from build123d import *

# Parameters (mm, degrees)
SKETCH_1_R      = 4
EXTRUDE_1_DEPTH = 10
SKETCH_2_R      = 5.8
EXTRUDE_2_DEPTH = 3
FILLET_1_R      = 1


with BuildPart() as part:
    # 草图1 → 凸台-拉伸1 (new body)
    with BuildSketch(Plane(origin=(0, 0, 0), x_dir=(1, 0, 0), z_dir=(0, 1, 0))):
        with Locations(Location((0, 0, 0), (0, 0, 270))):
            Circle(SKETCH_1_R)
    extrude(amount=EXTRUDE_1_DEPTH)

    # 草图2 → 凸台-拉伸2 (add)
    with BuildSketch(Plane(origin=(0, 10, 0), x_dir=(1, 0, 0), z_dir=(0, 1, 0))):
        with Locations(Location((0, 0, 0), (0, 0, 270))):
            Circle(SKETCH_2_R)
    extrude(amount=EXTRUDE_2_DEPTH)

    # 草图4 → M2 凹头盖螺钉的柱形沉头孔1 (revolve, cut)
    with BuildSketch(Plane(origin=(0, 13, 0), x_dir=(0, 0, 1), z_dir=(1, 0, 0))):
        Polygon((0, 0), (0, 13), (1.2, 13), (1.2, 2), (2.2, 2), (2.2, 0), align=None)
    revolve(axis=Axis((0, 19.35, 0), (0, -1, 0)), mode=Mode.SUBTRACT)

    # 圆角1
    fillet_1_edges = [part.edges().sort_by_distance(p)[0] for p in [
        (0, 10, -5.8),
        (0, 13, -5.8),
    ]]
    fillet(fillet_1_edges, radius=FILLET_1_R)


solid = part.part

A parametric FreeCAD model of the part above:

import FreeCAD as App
import Part
import Sketcher

V = App.Vector


def edges_at(feature, points):
    """Names of the edges that pass closest to the given points."""
    edges = feature.Shape.Edges
    near = lambda p: min(range(len(edges)), key=lambda i: edges[i].distToShape(Part.Vertex(*p))[0])
    return sorted({f"Edge{near(p) + 1}" for p in points})

doc = App.newDocument("Part")
params = doc.addObject("Spreadsheet::Sheet", "Params")
for row, (alias, value) in enumerate([
    ("sketch1_diameter", "8 mm"),
    ("pad1_length", "10 mm"),
    ("sketch2_diameter", "11.6 mm"),
    ("pad2_length", "3 mm"),
    ("sketch3_width", "13 mm"),
    ("sketch3_width2", "2 mm"),
    ("sketch3_height", "1 mm"),
    ("sketch3_height2", "2.2 mm"),
    ("groove_angle", "360 deg"),
    ("fillet_radius", "1 mm"),
], start=1):
    params.set(f"A{row}", alias)
    params.set(f"B{row}", "=" + value)
    params.setAlias(f"B{row}", alias)

body = doc.addObject("PartDesign::Body", "Body")

# Sketch on XZ plane
sketch1 = body.newObject("Sketcher::SketchObject", "Sketch")
sketch1.AttachmentSupport = (doc.getObject("XZ_Plane"), [""])
sketch1.MapMode = "FlatFace"
sketch1.addGeometry(Part.Circle(V(0, 0, 0), V(0, 0, 1), 4), False)
sketch1.addConstraint([
    Sketcher.Constraint("Coincident", 0, 3, -1, 1),
    Sketcher.Constraint("Diameter", 0, 8.0),
])
sketch1.setExpression("Constraints[1]", "Params.sketch1_diameter")
pad1 = body.newObject("PartDesign::Pad", "Pad")
pad1.Profile = sketch1
pad1.setExpression("Length", "Params.pad1_length")
pad1.Reversed = True

# Sketch on XZ plane
sketch2 = body.newObject("Sketcher::SketchObject", "Sketch001")
sketch2.AttachmentSupport = (doc.getObject("XZ_Plane"), [""])
sketch2.MapMode = "FlatFace"
sketch2.AttachmentOffset = App.Placement(V(0, 0, -10), App.Rotation())
sketch2.addGeometry(Part.Circle(V(0, 0, 0), V(0, 0, 1), 5.8), False)
sketch2.addConstraint([
    Sketcher.Constraint("Coincident", 0, 3, -1, 1),
    Sketcher.Constraint("Diameter", 0, 11.6),
])
sketch2.setExpression("Constraints[1]", "Params.sketch2_diameter")
pad2 = body.newObject("PartDesign::Pad", "Pad001")
pad2.Profile = sketch2
pad2.setExpression("Length", "Params.pad2_length")
pad2.Reversed = True

# Sketch on YZ plane
sketch3 = body.newObject("Sketcher::SketchObject", "Sketch002")
sketch3.AttachmentSupport = (doc.getObject("YZ_Plane"), [""])
sketch3.MapMode = "FlatFace"
sketch3.addGeometry([
    Part.LineSegment(V(0, 0, 0), V(13, 0, 0)),  # 0
    Part.LineSegment(V(13, 0, 0), V(13, 2.2, 0)),  # 1
    Part.LineSegment(V(13, 2.2, 0), V(11, 2.2, 0)),  # 2
    Part.LineSegment(V(11, 2.2, 0), V(11, 1.2, 0)),  # 3
    Part.LineSegment(V(11, 1.2, 0), V(0, 1.2, 0)),  # 4
    Part.LineSegment(V(0, 1.2, 0), V(0, 0, 0)),  # 5
], False)
sketch3.addConstraint([
    Sketcher.Constraint("Coincident", 0, 2, 1, 1),
    Sketcher.Constraint("Coincident", 1, 2, 2, 1),
    Sketcher.Constraint("Coincident", 2, 2, 3, 1),
    Sketcher.Constraint("Coincident", 3, 2, 4, 1),
    Sketcher.Constraint("Coincident", 4, 2, 5, 1),
    Sketcher.Constraint("Coincident", 5, 2, 0, 1),
    Sketcher.Constraint("Horizontal", 0),
    Sketcher.Constraint("Vertical", 1),
    Sketcher.Constraint("Horizontal", 2),
    Sketcher.Constraint("Vertical", 3),
    Sketcher.Constraint("Horizontal", 4),
    Sketcher.Constraint("Vertical", 5),
    Sketcher.Constraint("Coincident", 5, 2, -1, 1),
    Sketcher.Constraint("DistanceX", 0, 1, 0, 2, 13.0),
    Sketcher.Constraint("DistanceX", 2, 2, 2, 1, 2.0),
    Sketcher.Constraint("DistanceY", 3, 2, 3, 1, 1.0),
    Sketcher.Constraint("DistanceY", 1, 1, 1, 2, 2.2),
])
sketch3.setExpression("Constraints[13]", "Params.sketch3_width")
sketch3.setExpression("Constraints[14]", "Params.sketch3_width2")
sketch3.setExpression("Constraints[15]", "Params.sketch3_height")
sketch3.setExpression("Constraints[16]", "Params.sketch3_height2")
groove = body.newObject("PartDesign::Groove", "Groove")
groove.Profile = sketch3
groove.ReferenceAxis = (sketch3, ["H_Axis"])
groove.setExpression("Angle", "Params.groove_angle")
doc.recompute()

fillet = body.newObject("PartDesign::Fillet", "Fillet")
fillet.Base = (groove, edges_at(groove, [(0, 10, -5.8), (0, 13, -5.8)]))
fillet.setExpression("Radius", "Params.fillet_radius")

doc.recompute()
